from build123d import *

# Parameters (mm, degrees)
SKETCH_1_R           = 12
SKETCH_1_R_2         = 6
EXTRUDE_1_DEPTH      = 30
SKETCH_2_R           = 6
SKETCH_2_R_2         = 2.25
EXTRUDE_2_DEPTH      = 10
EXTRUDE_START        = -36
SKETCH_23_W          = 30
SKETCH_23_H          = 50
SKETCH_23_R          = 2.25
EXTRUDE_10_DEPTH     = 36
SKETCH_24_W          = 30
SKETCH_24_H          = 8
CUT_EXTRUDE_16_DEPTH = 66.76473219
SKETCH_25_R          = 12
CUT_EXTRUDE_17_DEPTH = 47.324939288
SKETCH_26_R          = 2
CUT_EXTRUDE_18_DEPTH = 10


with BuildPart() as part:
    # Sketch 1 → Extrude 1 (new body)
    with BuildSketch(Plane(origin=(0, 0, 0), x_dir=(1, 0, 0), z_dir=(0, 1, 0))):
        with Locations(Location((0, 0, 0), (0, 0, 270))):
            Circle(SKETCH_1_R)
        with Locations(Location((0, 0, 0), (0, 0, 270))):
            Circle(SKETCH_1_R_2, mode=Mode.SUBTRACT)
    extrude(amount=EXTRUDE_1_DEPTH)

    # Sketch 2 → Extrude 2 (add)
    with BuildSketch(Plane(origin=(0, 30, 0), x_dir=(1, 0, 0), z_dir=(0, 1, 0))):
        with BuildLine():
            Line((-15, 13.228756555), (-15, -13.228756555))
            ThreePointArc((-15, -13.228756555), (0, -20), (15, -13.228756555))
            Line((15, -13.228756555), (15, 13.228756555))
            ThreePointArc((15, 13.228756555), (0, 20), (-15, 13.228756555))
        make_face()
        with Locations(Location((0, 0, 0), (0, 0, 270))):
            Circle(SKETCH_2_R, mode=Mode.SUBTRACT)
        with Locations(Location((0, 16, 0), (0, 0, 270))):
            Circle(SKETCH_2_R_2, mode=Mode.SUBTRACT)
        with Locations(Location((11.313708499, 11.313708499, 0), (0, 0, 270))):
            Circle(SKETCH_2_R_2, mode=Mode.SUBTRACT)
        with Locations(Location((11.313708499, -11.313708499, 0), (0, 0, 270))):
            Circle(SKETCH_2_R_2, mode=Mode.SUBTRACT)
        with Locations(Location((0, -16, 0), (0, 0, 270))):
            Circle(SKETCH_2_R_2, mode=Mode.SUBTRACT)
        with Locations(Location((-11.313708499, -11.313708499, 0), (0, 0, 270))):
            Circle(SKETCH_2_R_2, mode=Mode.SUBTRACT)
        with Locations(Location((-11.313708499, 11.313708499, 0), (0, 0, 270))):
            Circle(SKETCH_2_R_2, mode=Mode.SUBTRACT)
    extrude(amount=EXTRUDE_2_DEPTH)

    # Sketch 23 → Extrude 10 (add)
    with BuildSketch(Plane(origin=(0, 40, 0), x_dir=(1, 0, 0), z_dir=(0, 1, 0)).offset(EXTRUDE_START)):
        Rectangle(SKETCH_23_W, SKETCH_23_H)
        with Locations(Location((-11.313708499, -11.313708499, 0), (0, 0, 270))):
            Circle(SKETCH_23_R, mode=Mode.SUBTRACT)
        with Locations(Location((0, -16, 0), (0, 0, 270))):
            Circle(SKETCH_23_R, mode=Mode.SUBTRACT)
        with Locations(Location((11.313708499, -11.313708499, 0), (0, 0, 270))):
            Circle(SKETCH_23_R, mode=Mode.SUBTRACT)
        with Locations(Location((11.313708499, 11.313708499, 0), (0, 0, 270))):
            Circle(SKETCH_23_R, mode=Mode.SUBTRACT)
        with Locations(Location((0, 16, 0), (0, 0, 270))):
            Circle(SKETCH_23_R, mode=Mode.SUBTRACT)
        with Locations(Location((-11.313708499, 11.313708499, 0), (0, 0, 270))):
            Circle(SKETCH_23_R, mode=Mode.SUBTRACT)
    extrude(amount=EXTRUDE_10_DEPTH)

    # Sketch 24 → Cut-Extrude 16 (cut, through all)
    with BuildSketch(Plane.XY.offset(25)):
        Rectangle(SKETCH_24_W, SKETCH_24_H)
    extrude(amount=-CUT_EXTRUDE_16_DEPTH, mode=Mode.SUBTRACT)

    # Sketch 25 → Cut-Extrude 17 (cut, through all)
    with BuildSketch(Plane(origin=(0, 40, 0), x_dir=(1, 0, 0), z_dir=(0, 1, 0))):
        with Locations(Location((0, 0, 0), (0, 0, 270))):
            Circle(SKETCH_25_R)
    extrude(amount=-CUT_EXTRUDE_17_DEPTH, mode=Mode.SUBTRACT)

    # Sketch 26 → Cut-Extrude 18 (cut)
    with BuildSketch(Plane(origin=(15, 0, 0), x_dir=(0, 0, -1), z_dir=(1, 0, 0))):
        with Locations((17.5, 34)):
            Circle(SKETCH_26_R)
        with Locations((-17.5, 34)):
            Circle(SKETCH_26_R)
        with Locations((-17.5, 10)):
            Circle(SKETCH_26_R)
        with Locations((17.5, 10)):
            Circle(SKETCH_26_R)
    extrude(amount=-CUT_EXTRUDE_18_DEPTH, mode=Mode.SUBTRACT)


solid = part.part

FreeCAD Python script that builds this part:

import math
import FreeCAD as App
import Part
import Sketcher

doc = App.newDocument("Part")
body = doc.addObject("PartDesign::Body", "Body")

sketch1 = body.newObject("Sketcher::SketchObject", "Sketch")
sketch1.AttachmentSupport = (doc.getObject("XZ_Plane"), [""])
sketch1.MapMode = "FlatFace"
sketch1.addGeometry(Part.Circle(App.Vector(0, 0, 0), App.Vector(0, 0, 1), 12), False)
sketch1.addGeometry(Part.Circle(App.Vector(0, 0, 0), App.Vector(0, 0, 1), 6), False)
sketch1.addConstraint(Sketcher.Constraint("Coincident", 0, 3, -1, 1))
sketch1.addConstraint(Sketcher.Constraint("Coincident", 1, 3, -1, 1))
sketch1.addConstraint(Sketcher.Constraint("Diameter", 0, 24.0))
sketch1.addConstraint(Sketcher.Constraint("Diameter", 1, 12.0))
pad1 = body.newObject("PartDesign::Pad", "Pad")
pad1.Profile = sketch1
pad1.Length = 30
pad1.Reversed = True

sketch2 = body.newObject("Sketcher::SketchObject", "Sketch001")
sketch2.AttachmentSupport = (doc.getObject("XZ_Plane"), [""])
sketch2.MapMode = "FlatFace"
sketch2.AttachmentOffset = App.Placement(App.Vector(0, 0, -30), App.Rotation())
sketch2.addGeometry(Part.LineSegment(App.Vector(-15, -13.2, 0), App.Vector(-15, 13.2, 0)), False)
sketch2.addGeometry(Part.ArcOfCircle(Part.Circle(App.Vector(0, 0, 0), App.Vector(0, 0, 1), 20), math.radians(41), math.radians(139)), False)
sketch2.addGeometry(Part.LineSegment(App.Vector(15, 13.2, 0), App.Vector(15, -13.2, 0)), False)
sketch2.addGeometry(Part.ArcOfCircle(Part.Circle(App.Vector(0, 0, 0), App.Vector(0, 0, 1), 20), math.radians(-139), math.radians(-41)), False)
sketch2.addGeometry(Part.Circle(App.Vector(-11.3, 11.3, 0), App.Vector(0, 0, 1), 2.2), False)
sketch2.addGeometry(Part.Circle(App.Vector(0, 16, 0), App.Vector(0, 0, 1), 2.2), False)
sketch2.addGeometry(Part.Circle(App.Vector(11.3, 11.3, 0), App.Vector(0, 0, 1), 2.2), False)
sketch2.addGeometry(Part.Circle(App.Vector(0, 0, 0), App.Vector(0, 0, 1), 6), False)
sketch2.addGeometry(Part.Circle(App.Vector(-11.3, -11.3, 0), App.Vector(0, 0, 1), 2.2), False)
sketch2.addGeometry(Part.Circle(App.Vector(0, -16, 0), App.Vector(0, 0, 1), 2.2), False)
sketch2.addGeometry(Part.Circle(App.Vector(11.3, -11.3, 0), App.Vector(0, 0, 1), 2.2), False)
sketch2.addConstraint(Sketcher.Constraint("Coincident", 0, 2, 1, 2))
sketch2.addConstraint(Sketcher.Constraint("Coincident", 1, 1, 2, 1))
sketch2.addConstraint(Sketcher.Constraint("Coincident", 2, 2, 3, 2))
sketch2.addConstraint(Sketcher.Constraint("Coincident", 3, 1, 0, 1))
sketch2.addConstraint(Sketcher.Constraint("Vertical", 0))
sketch2.addConstraint(Sketcher.Constraint("Vertical", 2))
sketch2.addConstraint(Sketcher.Constraint("Coincident", 1, 3, -1, 1))
sketch2.addConstraint(Sketcher.Constraint("Coincident", 3, 3, -1, 1))
sketch2.addConstraint(Sketcher.Constraint("Coincident", 7, 3, -1, 1))
sketch2.addConstraint(Sketcher.Constraint("Equal", 1, 3))
sketch2.addConstraint(Sketcher.Constraint("Equal", 4, 5))
sketch2.addConstraint(Sketcher.Constraint("Equal", 5, 6))
sketch2.addConstraint(Sketcher.Constraint("Equal", 6, 8))
sketch2.addConstraint(Sketcher.Constraint("Equal", 8, 9))
sketch2.addConstraint(Sketcher.Constraint("Equal", 9, 10))
sketch2.addConstraint(Sketcher.Constraint("Symmetric", 6, 3, 8, 3, -1, 1))
sketch2.addConstraint(Sketcher.Constraint("Symmetric", 5, 3, 9, 3, -1, 1))
sketch2.addConstraint(Sketcher.Constraint("Symmetric", 4, 3, 10, 3, -1, 1))
sketch2.addConstraint(Sketcher.Constraint("Symmetric", 4, 3, 6, 3, -2))
sketch2.addConstraint(Sketcher.Constraint("PointOnObject", 5, 3, -2))
sketch2.addConstraint(Sketcher.Constraint("Horizontal", 0, 2, 1, 1))
sketch2.addConstraint(Sketcher.Constraint("Diameter", 7, 12.0))
sketch2.addConstraint(Sketcher.Constraint("Radius", 1, 20.0))
sketch2.addConstraint(Sketcher.Constraint("Diameter", 4, 4.5))
sketch2.addConstraint(Sketcher.Constraint("DistanceY", -1, 1, 5, 3, 16.0))
sketch2.addConstraint(Sketcher.Constraint("DistanceX", 0, 2, -1, 1, 15.0))
sketch2.addConstraint(Sketcher.Constraint("DistanceX", 4, 3, -1, 1, 11.313708))
sketch2.addConstraint(Sketcher.Constraint("DistanceY", -1, 1, 4, 3, 11.313708))
pad2 = body.newObject("PartDesign::Pad", "Pad001")
pad2.Profile = sketch2
pad2.Length = 10
pad2.Reversed = True

sketch3 = body.newObject("Sketcher::SketchObject", "Sketch002")
sketch3.AttachmentSupport = (doc.getObject("XZ_Plane"), [""])
sketch3.MapMode = "FlatFace"
sketch3.AttachmentOffset = App.Placement(App.Vector(0, 0, -4), App.Rotation())
sketch3.addGeometry(Part.LineSegment(App.Vector(-15, -25, 0), App.Vector(-15, 25, 0)), False)
sketch3.addGeometry(Part.LineSegment(App.Vector(-15, 25, 0), App.Vector(15, 25, 0)), False)
sketch3.addGeometry(Part.LineSegment(App.Vector(15, 25, 0), App.Vector(15, -25, 0)), False)
sketch3.addGeometry(Part.LineSegment(App.Vector(15, -25, 0), App.Vector(-15, -25, 0)), False)
sketch3.addGeometry(Part.Circle(App.Vector(-11.3, 11.3, 0), App.Vector(0, 0, 1), 2.2), False)
sketch3.addGeometry(Part.Circle(App.Vector(0, 16, 0), App.Vector(0, 0, 1), 2.2), False)
sketch3.addGeometry(Part.Circle(App.Vector(11.3, 11.3, 0), App.Vector(0, 0, 1), 2.2), False)
sketch3.addGeometry(Part.Circle(App.Vector(-11.3, -11.3, 0), App.Vector(0, 0, 1), 2.2), False)
sketch3.addGeometry(Part.Circle(App.Vector(0, -16, 0), App.Vector(0, 0, 1), 2.2), False)
sketch3.addGeometry(Part.Circle(App.Vector(11.3, -11.3, 0), App.Vector(0, 0, 1), 2.2), False)
sketch3.addConstraint(Sketcher.Constraint("Coincident", 0, 2, 1, 1))
sketch3.addConstraint(Sketcher.Constraint("Coincident", 1, 2, 2, 1))
sketch3.addConstraint(Sketcher.Constraint("Coincident", 2, 2, 3, 1))
sketch3.addConstraint(Sketcher.Constraint("Coincident", 3, 2, 0, 1))
sketch3.addConstraint(Sketcher.Constraint("Vertical", 0))
sketch3.addConstraint(Sketcher.Constraint("Horizontal", 1))
sketch3.addConstraint(Sketcher.Constraint("Vertical", 2))
sketch3.addConstraint(Sketcher.Constraint("Horizontal", 3))
sketch3.addConstraint(Sketcher.Constraint("Equal", 4, 5))
sketch3.addConstraint(Sketcher.Constraint("Equal", 5, 6))
sketch3.addConstraint(Sketcher.Constraint("Equal", 6, 7))
sketch3.addConstraint(Sketcher.Constraint("Equal", 7, 8))
sketch3.addConstraint(Sketcher.Constraint("Equal", 8, 9))
sketch3.addConstraint(Sketcher.Constraint("Symmetric", 6, 3, 7, 3, -1, 1))
sketch3.addConstraint(Sketcher.Constraint("Symmetric", 5, 3, 8, 3, -1, 1))
sketch3.addConstraint(Sketcher.Constraint("Symmetric", 4, 3, 9, 3, -1, 1))
sketch3.addConstraint(Sketcher.Constraint("Symmetric", 0, 2, 2, 2, -1, 1))
sketch3.addConstraint(Sketcher.Constraint("Symmetric", 4, 3, 6, 3, -2))
sketch3.addConstraint(Sketcher.Constraint("PointOnObject", 5, 3, -2))
sketch3.addConstraint(Sketcher.Constraint("Diameter", 4, 4.5))
sketch3.addConstraint(Sketcher.Constraint("DistanceX", 1, 1, 1, 2, 30.0))
sketch3.addConstraint(Sketcher.Constraint("DistanceY", 0, 1, 0, 2, 50.0))
sketch3.addConstraint(Sketcher.Constraint("DistanceY", -1, 1, 5, 3, 16.0))
sketch3.addConstraint(Sketcher.Constraint("DistanceX", 4, 3, -1, 1, 11.313708))
sketch3.addConstraint(Sketcher.Constraint("DistanceY", -1, 1, 4, 3, 11.313708))
pad3 = body.newObject("PartDesign::Pad", "Pad002")
pad3.Profile = sketch3
pad3.Length = 36
pad3.Reversed = True

sketch4 = body.newObject("Sketcher::SketchObject", "Sketch003")
sketch4.AttachmentSupport = (doc.getObject("XY_Plane"), [""])
sketch4.MapMode = "FlatFace"
sketch4.AttachmentOffset = App.Placement(App.Vector(0, 0, 25), App.Rotation())
sketch4.addGeometry(Part.LineSegment(App.Vector(-15, 4, 0), App.Vector(-15, -4, 0)), False)
sketch4.addGeometry(Part.LineSegment(App.Vector(-15, -4, 0), App.Vector(15, -4, 0)), False)
sketch4.addGeometry(Part.LineSegment(App.Vector(15, -4, 0), App.Vector(15, 4, 0)), False)
sketch4.addGeometry(Part.LineSegment(App.Vector(15, 4, 0), App.Vector(-15, 4, 0)), False)
sketch4.addConstraint(Sketcher.Constraint("Coincident", 0, 2, 1, 1))
sketch4.addConstraint(Sketcher.Constraint("Coincident", 1, 2, 2, 1))
sketch4.addConstraint(Sketcher.Constraint("Coincident", 2, 2, 3, 1))
sketch4.addConstraint(Sketcher.Constraint("Coincident", 3, 2, 0, 1))
sketch4.addConstraint(Sketcher.Constraint("Vertical", 0))
sketch4.addConstraint(Sketcher.Constraint("Horizontal", 1))
sketch4.addConstraint(Sketcher.Constraint("Vertical", 2))
sketch4.addConstraint(Sketcher.Constraint("Horizontal", 3))
sketch4.addConstraint(Sketcher.Constraint("Symmetric", 0, 2, 2, 2, -1, 1))
sketch4.addConstraint(Sketcher.Constraint("DistanceX", 1, 1, 1, 2, 30.0))
sketch4.addConstraint(Sketcher.Constraint("DistanceY", 0, 2, 0, 1, 8.0))
pocket1 = body.newObject("PartDesign::Pocket", "Pocket")
pocket1.Profile = sketch4
pocket1.Type = "ThroughAll"

sketch5 = body.newObject("Sketcher::SketchObject", "Sketch004")
sketch5.AttachmentSupport = (doc.getObject("XZ_Plane"), [""])
sketch5.MapMode = "FlatFace"
sketch5.AttachmentOffset = App.Placement(App.Vector(0, 0, -40), App.Rotation())
sketch5.addGeometry(Part.Circle(App.Vector(0, 0, 0), App.Vector(0, 0, 1), 12), False)
sketch5.addConstraint(Sketcher.Constraint("Coincident", 0, 3, -1, 1))
sketch5.addConstraint(Sketcher.Constraint("Diameter", 0, 24.0))
pocket2 = body.newObject("PartDesign::Pocket", "Pocket001")
pocket2.Profile = sketch5
pocket2.Type = "ThroughAll"
pocket2.Reversed = True

sketch6 = body.newObject("Sketcher::SketchObject", "Sketch005")
sketch6.AttachmentSupport = (doc.getObject("YZ_Plane"), [""])
sketch6.MapMode = "FlatFace"
sketch6.AttachmentOffset = App.Placement(App.Vector(0, 0, 15), App.Rotation())
sketch6.addGeometry(Part.Circle(App.Vector(34, -17.5, 0), App.Vector(0, 0, 1), 2), False)
sketch6.addGeometry(Part.Circle(App.Vector(34, 17.5, 0), App.Vector(0, 0, 1), 2), False)
sketch6.addGeometry(Part.Circle(App.Vector(10, 17.5, 0), App.Vector(0, 0, 1), 2), False)
sketch6.addGeometry(Part.Circle(App.Vector(10, -17.5, 0), App.Vector(0, 0, 1), 2), False)
sketch6.addConstraint(Sketcher.Constraint("Equal", 0, 1))
sketch6.addConstraint(Sketcher.Constraint("Equal", 1, 2))
sketch6.addConstraint(Sketcher.Constraint("Equal", 2, 3))
sketch6.addConstraint(Sketcher.Constraint("Symmetric", 0, 3, 1, 3, -1))
sketch6.addConstraint(Sketcher.Constraint("Symmetric", 2, 3, 3, 3, -1))
sketch6.addConstraint(Sketcher.Constraint("Horizontal", 1, 3, 2, 3))
sketch6.addConstraint(Sketcher.Constraint("Diameter", 0, 4.0))
sketch6.addConstraint(Sketcher.Constraint("DistanceX", -1, 1, 0, 3, 34.0))
sketch6.addConstraint(Sketcher.Constraint("DistanceX", -1, 1, 2, 3, 10.0))
sketch6.addConstraint(Sketcher.Constraint("DistanceY", 0, 3, 1, 3, 35.0))
pocket3 = body.newObject("PartDesign::Pocket", "Pocket002")
pocket3.Profile = sketch6
pocket3.Length = 10

doc.recompute()
